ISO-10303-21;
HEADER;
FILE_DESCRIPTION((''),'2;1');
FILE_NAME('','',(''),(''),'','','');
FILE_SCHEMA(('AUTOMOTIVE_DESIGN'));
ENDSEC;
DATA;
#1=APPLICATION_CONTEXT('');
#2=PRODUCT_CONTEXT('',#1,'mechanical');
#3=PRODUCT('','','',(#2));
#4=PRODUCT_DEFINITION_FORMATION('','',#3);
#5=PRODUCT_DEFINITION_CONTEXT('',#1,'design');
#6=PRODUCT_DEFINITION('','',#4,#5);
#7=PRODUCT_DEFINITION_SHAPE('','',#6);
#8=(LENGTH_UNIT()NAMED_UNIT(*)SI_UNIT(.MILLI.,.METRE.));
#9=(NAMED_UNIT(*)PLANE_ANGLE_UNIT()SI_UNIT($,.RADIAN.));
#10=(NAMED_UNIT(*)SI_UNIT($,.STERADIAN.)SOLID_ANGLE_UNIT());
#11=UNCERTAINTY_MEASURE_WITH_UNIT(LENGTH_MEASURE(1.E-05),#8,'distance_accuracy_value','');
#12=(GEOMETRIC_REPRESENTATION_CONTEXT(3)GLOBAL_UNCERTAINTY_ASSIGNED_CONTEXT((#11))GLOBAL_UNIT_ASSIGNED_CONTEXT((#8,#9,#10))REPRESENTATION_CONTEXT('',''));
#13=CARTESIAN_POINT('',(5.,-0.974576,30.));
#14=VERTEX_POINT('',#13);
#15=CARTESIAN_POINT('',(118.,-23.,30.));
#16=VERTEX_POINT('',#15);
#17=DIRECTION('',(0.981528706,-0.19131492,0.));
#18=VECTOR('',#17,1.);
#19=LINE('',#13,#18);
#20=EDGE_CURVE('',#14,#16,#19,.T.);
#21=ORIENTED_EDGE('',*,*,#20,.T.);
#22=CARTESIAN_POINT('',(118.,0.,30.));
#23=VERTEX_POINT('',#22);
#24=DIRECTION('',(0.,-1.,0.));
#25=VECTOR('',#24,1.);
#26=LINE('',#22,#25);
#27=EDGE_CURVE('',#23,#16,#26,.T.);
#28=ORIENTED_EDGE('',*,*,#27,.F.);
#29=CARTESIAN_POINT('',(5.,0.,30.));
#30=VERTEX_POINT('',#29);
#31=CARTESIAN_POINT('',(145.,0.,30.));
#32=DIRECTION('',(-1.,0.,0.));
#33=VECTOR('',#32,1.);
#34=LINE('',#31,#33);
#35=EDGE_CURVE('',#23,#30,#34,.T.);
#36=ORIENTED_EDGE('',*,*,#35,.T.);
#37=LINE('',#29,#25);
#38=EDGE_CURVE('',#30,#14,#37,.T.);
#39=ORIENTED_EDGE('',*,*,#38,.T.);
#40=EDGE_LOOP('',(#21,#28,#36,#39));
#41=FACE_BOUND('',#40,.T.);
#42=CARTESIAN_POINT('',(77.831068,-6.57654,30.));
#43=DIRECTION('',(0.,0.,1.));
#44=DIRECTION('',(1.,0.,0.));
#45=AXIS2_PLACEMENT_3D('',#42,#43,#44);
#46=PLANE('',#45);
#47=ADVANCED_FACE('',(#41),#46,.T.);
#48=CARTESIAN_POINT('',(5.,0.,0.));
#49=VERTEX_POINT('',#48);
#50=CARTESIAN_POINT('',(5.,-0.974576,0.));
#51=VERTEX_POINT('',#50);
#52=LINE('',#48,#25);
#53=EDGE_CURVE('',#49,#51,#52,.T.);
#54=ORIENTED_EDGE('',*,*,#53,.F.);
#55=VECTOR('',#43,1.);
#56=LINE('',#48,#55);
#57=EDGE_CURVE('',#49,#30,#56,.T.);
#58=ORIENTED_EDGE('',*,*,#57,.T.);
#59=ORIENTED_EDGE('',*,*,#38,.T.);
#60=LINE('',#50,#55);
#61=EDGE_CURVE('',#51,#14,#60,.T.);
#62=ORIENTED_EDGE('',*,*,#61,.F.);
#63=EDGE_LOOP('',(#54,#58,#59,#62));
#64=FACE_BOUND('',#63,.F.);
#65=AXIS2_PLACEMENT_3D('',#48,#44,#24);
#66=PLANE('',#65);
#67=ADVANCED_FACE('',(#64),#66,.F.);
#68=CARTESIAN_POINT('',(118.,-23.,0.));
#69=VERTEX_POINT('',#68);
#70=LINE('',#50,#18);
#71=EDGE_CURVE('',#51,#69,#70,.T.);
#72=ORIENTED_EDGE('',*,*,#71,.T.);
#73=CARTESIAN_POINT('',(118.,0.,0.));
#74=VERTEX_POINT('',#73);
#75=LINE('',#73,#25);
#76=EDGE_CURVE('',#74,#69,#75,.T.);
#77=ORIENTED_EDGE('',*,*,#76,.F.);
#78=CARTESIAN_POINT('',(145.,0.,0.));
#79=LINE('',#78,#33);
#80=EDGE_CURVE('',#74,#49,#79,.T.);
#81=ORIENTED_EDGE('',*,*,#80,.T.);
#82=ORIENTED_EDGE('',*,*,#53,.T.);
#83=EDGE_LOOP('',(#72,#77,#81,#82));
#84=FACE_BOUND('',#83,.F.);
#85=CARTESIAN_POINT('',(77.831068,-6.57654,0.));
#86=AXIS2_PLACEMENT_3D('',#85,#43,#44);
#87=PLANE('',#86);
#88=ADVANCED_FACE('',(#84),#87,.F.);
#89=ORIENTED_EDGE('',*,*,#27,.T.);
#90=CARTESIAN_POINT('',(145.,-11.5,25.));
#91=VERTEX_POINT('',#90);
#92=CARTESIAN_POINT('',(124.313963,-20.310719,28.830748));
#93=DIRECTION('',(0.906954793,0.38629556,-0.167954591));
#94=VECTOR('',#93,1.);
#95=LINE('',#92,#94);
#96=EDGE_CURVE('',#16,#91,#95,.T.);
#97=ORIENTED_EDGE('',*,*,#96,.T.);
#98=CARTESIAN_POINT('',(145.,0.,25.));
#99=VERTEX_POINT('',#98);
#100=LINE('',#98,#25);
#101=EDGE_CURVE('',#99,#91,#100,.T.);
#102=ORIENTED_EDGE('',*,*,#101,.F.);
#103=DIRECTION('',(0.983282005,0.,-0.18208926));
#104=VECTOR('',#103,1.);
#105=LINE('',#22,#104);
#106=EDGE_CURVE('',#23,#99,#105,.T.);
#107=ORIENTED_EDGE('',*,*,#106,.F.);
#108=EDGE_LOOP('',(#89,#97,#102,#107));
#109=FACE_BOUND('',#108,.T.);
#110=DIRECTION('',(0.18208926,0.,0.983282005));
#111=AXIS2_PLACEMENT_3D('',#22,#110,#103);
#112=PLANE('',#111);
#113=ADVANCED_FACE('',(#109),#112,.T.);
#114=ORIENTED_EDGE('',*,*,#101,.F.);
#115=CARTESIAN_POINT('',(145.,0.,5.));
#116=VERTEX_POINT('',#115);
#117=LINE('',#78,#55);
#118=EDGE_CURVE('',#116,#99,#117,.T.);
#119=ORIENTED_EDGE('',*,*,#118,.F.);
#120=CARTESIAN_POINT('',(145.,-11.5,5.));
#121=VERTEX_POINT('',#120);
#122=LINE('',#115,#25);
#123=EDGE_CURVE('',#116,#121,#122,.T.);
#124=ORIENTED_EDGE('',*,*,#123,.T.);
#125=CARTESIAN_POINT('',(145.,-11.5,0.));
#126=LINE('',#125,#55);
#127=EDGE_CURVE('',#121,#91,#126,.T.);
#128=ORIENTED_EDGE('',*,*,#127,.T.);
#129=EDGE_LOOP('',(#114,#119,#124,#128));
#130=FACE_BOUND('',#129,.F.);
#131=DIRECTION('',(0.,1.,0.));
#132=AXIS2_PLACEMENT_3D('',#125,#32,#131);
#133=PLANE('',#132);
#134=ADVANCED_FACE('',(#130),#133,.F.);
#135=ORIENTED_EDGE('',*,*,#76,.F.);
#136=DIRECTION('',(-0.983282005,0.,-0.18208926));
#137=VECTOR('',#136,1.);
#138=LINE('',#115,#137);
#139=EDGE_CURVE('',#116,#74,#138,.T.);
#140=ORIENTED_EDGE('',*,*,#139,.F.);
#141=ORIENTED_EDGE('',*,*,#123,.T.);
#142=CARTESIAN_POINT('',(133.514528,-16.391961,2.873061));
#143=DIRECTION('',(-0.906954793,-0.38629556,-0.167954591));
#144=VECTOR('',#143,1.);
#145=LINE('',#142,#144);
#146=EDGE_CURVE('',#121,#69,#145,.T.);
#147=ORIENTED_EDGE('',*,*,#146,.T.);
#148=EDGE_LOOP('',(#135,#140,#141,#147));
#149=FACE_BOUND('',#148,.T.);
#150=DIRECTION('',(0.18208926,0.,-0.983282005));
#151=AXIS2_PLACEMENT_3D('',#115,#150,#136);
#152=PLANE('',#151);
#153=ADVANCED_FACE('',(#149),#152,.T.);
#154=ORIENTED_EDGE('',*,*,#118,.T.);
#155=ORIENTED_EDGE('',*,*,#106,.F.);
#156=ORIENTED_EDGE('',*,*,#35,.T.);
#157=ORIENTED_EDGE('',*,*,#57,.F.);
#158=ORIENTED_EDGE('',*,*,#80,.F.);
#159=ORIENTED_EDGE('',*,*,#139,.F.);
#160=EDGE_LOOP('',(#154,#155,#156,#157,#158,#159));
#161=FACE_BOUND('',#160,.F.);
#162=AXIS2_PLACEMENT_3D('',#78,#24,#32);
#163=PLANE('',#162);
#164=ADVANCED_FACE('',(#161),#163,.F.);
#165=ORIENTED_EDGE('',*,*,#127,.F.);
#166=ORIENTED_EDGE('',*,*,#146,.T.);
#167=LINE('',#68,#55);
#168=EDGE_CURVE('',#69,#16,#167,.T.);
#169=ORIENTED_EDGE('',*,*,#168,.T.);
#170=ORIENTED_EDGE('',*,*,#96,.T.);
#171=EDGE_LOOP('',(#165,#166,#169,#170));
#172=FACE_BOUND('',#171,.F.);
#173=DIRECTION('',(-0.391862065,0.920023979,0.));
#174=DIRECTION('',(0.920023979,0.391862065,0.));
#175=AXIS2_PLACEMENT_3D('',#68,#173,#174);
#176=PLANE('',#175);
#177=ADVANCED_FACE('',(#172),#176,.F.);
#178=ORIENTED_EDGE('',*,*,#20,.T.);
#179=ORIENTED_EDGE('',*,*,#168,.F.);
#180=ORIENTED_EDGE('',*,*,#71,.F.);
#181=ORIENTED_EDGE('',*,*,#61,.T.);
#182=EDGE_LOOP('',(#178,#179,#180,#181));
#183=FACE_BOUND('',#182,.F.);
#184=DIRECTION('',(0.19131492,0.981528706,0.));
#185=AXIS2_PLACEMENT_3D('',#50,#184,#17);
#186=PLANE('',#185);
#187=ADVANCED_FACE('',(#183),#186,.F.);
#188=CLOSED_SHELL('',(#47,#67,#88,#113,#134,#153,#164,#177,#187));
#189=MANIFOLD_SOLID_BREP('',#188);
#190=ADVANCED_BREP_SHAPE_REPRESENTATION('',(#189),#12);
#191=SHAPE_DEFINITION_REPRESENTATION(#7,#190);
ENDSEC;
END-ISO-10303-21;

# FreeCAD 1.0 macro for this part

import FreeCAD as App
import Part
import Sketcher
Q = App.Units.Quantity


def add_polygon(sketch, points):
    """Adds a closed chain of lines whose ends are joined by coincident constraints."""
    first, n = sketch.GeometryCount, len(points)
    for a, b in zip(points, points[1:] + points[:1]):
        sketch.addGeometry(Part.LineSegment(App.Vector(*a, 0), App.Vector(*b, 0)), False)
    for i in range(n):
        sketch.addConstraint(Sketcher.Constraint("Coincident", first + i, 2, first + (i + 1) % n, 1))

doc = App.newDocument("Part")
params = doc.addObject("Spreadsheet::Sheet", "Params")
for row, (alias, value) in enumerate([
    ("sketch1_width", "140 mm"),
    ("sketch1_height", "11.5 mm"),
    ("pad1_length", "30 mm"),
    ("sketch2_width", "27 mm"),
    ("sketch2_height", "5 mm"),
    ("pocket1_length", "25 mm"),
], start=1):
    params.set(f"A{row}", alias)
    params.set(f"B{row}", "=" + value)
    params.setAlias(f"B{row}", alias)

body = doc.addObject("PartDesign::Body", "Body")

# Sketch on XY plane
sketch1 = body.newObject("Sketcher::SketchObject", "Sketch")
sketch1.AttachmentSupport = (doc.getObject("XY_Plane"), [""])
sketch1.MapMode = "FlatFace"
add_polygon(sketch1, [(145, 0), (5, 0), (5, -1), (118, -23), (145, -11.5)])  # lines 0-4
sketch1.addConstraint(Sketcher.Constraint("Horizontal", 0))
sketch1.addConstraint(Sketcher.Constraint("Vertical", 1))
sketch1.addConstraint(Sketcher.Constraint("Vertical", 4))
sketch1.addConstraint(Sketcher.Constraint("PointOnObject", 0, 2, -1))
sketch1.addConstraint(Sketcher.Constraint("DistanceX", 0, 2, 0, 1, Q("140 mm")))
sketch1.addConstraint(Sketcher.Constraint("DistanceY", 4, 1, 4, 2, Q("11.5 mm")))
sketch1.addConstraint(Sketcher.Constraint("DistanceX", -1, 1, 0, 2, Q("5 mm")))
sketch1.addConstraint(Sketcher.Constraint("DistanceX", -1, 1, 2, 2, Q("118 mm")))
sketch1.addConstraint(Sketcher.Constraint("DistanceY", 2, 2, -1, 1, Q("23 mm")))
sketch1.addConstraint(Sketcher.Constraint("DistanceY", 1, 2, 1, 1, Q("0.974576 mm")))
sketch1.setExpression("Constraints[9]", "Params.sketch1_width")
sketch1.setExpression("Constraints[10]", "Params.sketch1_height")
pad1 = body.newObject("PartDesign::Pad", "Pad")
pad1.Profile = sketch1
pad1.setExpression("Length", "Params.pad1_length")

# Sketch on XZ plane
sketch2 = body.newObject("Sketcher::SketchObject", "Sketch001")
sketch2.AttachmentSupport = (doc.getObject("XZ_Plane"), [""])
sketch2.MapMode = "FlatFace"
add_polygon(sketch2, [(118, 0), (145, 0), (145, 5)])  # lines 0-2
add_polygon(sketch2, [(145, 30), (118, 30), (145, 25)])  # lines 3-5
sketch2.addConstraint(Sketcher.Constraint("Horizontal", 0))
sketch2.addConstraint(Sketcher.Constraint("Vertical", 1))
sketch2.addConstraint(Sketcher.Constraint("Horizontal", 3))
sketch2.addConstraint(Sketcher.Constraint("Vertical", 5))
sketch2.addConstraint(Sketcher.Constraint("PointOnObject", 0, 2, -1))
sketch2.addConstraint(Sketcher.Constraint("Vertical", 2, 2, 3, 2))
sketch2.addConstraint(Sketcher.Constraint("Vertical", 1, 2, 4, 2))
sketch2.addConstraint(Sketcher.Constraint("Equal", 1, 5))
sketch2.addConstraint(Sketcher.Constraint("DistanceX", 0, 1, 0, 2, Q("27 mm")))
sketch2.addConstraint(Sketcher.Constraint("DistanceY", 1, 1, 1, 2, Q("5 mm")))
sketch2.addConstraint(Sketcher.Constraint("DistanceX", -1, 1, 0, 2, Q("145 mm")))
sketch2.addConstraint(Sketcher.Constraint("DistanceY", -1, 1, 3, 2, Q("30 mm")))
sketch2.setExpression("Constraints[14]", "Params.sketch2_width")
sketch2.setExpression("Constraints[15]", "Params.sketch2_height")
pocket1 = body.newObject("PartDesign::Pocket", "Pocket")
pocket1.Profile = sketch2
pocket1.setExpression("Length", "Params.pocket1_length")
pocket1.Reversed = True

doc.recompute()
